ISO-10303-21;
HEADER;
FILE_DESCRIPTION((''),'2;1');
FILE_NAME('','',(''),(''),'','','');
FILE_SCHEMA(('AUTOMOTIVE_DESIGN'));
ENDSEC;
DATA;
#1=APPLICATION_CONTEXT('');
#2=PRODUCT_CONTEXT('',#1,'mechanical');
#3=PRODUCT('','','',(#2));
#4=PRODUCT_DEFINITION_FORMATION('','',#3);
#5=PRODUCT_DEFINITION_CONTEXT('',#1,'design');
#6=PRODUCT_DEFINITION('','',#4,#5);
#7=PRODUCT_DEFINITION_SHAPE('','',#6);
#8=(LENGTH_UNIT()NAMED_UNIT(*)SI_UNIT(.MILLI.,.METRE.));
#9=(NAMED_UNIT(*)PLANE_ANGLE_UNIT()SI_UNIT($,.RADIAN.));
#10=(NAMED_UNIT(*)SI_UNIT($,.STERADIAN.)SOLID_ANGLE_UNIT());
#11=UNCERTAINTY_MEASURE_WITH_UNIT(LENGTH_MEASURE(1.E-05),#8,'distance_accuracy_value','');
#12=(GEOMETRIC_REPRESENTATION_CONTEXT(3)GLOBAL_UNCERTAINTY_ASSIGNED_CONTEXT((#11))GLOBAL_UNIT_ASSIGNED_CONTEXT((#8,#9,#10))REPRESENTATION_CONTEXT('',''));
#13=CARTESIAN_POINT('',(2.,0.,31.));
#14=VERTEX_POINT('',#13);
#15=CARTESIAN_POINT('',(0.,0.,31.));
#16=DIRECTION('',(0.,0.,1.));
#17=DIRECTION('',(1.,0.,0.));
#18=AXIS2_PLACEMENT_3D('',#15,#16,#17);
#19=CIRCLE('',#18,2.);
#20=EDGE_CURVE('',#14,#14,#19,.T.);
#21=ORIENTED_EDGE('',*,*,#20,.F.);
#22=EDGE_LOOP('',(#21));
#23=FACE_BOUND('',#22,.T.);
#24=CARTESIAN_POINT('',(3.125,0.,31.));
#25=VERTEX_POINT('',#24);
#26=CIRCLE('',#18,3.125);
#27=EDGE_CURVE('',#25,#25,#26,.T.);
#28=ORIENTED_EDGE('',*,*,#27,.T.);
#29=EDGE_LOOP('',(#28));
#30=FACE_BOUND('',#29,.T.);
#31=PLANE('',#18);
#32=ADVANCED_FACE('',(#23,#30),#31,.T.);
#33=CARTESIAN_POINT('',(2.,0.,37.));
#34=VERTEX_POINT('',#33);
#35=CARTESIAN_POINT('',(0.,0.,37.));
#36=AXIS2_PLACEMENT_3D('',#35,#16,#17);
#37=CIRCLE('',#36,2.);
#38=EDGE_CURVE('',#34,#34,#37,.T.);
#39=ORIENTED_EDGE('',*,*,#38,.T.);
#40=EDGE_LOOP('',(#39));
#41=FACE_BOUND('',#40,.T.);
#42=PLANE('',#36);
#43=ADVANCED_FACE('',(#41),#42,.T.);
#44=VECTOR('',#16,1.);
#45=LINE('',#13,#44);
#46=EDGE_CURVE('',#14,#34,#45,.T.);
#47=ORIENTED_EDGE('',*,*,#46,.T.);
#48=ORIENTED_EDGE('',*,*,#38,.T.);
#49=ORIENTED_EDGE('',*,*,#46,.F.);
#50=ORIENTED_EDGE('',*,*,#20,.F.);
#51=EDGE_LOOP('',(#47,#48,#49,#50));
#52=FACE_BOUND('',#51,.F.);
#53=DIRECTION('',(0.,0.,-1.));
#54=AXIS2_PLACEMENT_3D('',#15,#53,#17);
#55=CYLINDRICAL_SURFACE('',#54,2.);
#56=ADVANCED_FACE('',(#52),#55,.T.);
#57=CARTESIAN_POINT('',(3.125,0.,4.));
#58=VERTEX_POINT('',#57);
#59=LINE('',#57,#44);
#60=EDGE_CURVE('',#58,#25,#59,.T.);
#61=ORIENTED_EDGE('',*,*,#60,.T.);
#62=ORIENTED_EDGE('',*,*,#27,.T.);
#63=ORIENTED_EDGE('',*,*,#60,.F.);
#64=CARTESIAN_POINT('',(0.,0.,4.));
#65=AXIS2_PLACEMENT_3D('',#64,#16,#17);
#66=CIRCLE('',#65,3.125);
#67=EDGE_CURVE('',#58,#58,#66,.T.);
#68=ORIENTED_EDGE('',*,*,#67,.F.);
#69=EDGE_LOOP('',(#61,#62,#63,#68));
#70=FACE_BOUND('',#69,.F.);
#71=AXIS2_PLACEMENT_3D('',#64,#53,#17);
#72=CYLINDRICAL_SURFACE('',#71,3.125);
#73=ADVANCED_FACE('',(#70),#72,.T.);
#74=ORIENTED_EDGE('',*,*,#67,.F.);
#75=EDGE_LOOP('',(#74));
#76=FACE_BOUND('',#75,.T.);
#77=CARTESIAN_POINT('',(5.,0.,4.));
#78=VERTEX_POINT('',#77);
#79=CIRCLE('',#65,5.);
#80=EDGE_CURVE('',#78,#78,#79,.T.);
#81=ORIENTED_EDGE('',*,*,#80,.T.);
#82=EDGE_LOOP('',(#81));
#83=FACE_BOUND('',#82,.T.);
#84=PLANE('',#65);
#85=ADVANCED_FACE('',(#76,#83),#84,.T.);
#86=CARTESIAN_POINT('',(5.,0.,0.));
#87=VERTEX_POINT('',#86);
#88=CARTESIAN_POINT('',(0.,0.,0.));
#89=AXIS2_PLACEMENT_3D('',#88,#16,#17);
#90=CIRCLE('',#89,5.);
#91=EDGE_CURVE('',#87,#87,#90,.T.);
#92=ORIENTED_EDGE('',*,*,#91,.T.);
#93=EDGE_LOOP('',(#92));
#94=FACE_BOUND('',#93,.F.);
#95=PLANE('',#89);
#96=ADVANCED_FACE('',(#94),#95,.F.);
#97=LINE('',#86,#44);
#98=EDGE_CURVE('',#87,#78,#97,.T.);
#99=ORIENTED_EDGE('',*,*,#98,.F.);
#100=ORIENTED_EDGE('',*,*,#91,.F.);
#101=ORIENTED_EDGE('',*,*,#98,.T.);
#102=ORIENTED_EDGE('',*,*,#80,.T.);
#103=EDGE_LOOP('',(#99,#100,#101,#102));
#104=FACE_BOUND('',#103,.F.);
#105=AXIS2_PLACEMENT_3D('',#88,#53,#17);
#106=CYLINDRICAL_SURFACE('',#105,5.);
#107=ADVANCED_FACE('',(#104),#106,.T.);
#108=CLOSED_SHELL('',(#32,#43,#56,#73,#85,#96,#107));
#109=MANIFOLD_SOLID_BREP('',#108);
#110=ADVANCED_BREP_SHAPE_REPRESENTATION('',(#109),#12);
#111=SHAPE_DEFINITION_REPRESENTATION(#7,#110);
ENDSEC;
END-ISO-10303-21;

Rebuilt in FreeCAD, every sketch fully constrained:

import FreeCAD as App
import Part
import Sketcher
Q = App.Units.Quantity

doc = App.newDocument("Part")
body = doc.addObject("PartDesign::Body", "Body")

sketch1 = body.newObject("Sketcher::SketchObject", "Sketch")
sketch1.AttachmentSupport = (doc.getObject("XY_Plane"), [""])
sketch1.MapMode = "FlatFace"
sketch1.addGeometry(Part.Circle(App.Vector(0, 0, 0), App.Vector(0, 0, 1), 5), False)
sketch1.addConstraint([
    Sketcher.Constraint("Coincident", 0, 3, -1, 1),
    Sketcher.Constraint("Diameter", 0, Q("10 mm")),
])
pad1 = body.newObject("PartDesign::Pad", "Pad")
pad1.Profile = sketch1
pad1.Length = 4

sketch2 = body.newObject("Sketcher::SketchObject", "Sketch001")
sketch2.AttachmentSupport = (doc.getObject("XY_Plane"), [""])
sketch2.MapMode = "FlatFace"
sketch2.AttachmentOffset = App.Placement(App.Vector(0, 0, 4), App.Rotation())
sketch2.addGeometry(Part.Circle(App.Vector(0, 0, 0), App.Vector(0, 0, 1), 3.125), False)
sketch2.addConstraint([
    Sketcher.Constraint("Coincident", 0, 3, -1, 1),
    Sketcher.Constraint("Diameter", 0, Q("6.25 mm")),
])
pad2 = body.newObject("PartDesign::Pad", "Pad001")
pad2.Profile = sketch2
pad2.Length = 27

sketch3 = body.newObject("Sketcher::SketchObject", "Sketch002")
sketch3.AttachmentSupport = (doc.getObject("XY_Plane"), [""])
sketch3.MapMode = "FlatFace"
sketch3.AttachmentOffset = App.Placement(App.Vector(0, 0, 31), App.Rotation())
sketch3.addGeometry(Part.Circle(App.Vector(0, 0, 0), App.Vector(0, 0, 1), 2), False)
sketch3.addConstraint([
    Sketcher.Constraint("Coincident", 0, 3, -1, 1),
    Sketcher.Constraint("Diameter", 0, Q("4 mm")),
])
pad3 = body.newObject("PartDesign::Pad", "Pad002")
pad3.Profile = sketch3
pad3.Length = 6

doc.recompute()
